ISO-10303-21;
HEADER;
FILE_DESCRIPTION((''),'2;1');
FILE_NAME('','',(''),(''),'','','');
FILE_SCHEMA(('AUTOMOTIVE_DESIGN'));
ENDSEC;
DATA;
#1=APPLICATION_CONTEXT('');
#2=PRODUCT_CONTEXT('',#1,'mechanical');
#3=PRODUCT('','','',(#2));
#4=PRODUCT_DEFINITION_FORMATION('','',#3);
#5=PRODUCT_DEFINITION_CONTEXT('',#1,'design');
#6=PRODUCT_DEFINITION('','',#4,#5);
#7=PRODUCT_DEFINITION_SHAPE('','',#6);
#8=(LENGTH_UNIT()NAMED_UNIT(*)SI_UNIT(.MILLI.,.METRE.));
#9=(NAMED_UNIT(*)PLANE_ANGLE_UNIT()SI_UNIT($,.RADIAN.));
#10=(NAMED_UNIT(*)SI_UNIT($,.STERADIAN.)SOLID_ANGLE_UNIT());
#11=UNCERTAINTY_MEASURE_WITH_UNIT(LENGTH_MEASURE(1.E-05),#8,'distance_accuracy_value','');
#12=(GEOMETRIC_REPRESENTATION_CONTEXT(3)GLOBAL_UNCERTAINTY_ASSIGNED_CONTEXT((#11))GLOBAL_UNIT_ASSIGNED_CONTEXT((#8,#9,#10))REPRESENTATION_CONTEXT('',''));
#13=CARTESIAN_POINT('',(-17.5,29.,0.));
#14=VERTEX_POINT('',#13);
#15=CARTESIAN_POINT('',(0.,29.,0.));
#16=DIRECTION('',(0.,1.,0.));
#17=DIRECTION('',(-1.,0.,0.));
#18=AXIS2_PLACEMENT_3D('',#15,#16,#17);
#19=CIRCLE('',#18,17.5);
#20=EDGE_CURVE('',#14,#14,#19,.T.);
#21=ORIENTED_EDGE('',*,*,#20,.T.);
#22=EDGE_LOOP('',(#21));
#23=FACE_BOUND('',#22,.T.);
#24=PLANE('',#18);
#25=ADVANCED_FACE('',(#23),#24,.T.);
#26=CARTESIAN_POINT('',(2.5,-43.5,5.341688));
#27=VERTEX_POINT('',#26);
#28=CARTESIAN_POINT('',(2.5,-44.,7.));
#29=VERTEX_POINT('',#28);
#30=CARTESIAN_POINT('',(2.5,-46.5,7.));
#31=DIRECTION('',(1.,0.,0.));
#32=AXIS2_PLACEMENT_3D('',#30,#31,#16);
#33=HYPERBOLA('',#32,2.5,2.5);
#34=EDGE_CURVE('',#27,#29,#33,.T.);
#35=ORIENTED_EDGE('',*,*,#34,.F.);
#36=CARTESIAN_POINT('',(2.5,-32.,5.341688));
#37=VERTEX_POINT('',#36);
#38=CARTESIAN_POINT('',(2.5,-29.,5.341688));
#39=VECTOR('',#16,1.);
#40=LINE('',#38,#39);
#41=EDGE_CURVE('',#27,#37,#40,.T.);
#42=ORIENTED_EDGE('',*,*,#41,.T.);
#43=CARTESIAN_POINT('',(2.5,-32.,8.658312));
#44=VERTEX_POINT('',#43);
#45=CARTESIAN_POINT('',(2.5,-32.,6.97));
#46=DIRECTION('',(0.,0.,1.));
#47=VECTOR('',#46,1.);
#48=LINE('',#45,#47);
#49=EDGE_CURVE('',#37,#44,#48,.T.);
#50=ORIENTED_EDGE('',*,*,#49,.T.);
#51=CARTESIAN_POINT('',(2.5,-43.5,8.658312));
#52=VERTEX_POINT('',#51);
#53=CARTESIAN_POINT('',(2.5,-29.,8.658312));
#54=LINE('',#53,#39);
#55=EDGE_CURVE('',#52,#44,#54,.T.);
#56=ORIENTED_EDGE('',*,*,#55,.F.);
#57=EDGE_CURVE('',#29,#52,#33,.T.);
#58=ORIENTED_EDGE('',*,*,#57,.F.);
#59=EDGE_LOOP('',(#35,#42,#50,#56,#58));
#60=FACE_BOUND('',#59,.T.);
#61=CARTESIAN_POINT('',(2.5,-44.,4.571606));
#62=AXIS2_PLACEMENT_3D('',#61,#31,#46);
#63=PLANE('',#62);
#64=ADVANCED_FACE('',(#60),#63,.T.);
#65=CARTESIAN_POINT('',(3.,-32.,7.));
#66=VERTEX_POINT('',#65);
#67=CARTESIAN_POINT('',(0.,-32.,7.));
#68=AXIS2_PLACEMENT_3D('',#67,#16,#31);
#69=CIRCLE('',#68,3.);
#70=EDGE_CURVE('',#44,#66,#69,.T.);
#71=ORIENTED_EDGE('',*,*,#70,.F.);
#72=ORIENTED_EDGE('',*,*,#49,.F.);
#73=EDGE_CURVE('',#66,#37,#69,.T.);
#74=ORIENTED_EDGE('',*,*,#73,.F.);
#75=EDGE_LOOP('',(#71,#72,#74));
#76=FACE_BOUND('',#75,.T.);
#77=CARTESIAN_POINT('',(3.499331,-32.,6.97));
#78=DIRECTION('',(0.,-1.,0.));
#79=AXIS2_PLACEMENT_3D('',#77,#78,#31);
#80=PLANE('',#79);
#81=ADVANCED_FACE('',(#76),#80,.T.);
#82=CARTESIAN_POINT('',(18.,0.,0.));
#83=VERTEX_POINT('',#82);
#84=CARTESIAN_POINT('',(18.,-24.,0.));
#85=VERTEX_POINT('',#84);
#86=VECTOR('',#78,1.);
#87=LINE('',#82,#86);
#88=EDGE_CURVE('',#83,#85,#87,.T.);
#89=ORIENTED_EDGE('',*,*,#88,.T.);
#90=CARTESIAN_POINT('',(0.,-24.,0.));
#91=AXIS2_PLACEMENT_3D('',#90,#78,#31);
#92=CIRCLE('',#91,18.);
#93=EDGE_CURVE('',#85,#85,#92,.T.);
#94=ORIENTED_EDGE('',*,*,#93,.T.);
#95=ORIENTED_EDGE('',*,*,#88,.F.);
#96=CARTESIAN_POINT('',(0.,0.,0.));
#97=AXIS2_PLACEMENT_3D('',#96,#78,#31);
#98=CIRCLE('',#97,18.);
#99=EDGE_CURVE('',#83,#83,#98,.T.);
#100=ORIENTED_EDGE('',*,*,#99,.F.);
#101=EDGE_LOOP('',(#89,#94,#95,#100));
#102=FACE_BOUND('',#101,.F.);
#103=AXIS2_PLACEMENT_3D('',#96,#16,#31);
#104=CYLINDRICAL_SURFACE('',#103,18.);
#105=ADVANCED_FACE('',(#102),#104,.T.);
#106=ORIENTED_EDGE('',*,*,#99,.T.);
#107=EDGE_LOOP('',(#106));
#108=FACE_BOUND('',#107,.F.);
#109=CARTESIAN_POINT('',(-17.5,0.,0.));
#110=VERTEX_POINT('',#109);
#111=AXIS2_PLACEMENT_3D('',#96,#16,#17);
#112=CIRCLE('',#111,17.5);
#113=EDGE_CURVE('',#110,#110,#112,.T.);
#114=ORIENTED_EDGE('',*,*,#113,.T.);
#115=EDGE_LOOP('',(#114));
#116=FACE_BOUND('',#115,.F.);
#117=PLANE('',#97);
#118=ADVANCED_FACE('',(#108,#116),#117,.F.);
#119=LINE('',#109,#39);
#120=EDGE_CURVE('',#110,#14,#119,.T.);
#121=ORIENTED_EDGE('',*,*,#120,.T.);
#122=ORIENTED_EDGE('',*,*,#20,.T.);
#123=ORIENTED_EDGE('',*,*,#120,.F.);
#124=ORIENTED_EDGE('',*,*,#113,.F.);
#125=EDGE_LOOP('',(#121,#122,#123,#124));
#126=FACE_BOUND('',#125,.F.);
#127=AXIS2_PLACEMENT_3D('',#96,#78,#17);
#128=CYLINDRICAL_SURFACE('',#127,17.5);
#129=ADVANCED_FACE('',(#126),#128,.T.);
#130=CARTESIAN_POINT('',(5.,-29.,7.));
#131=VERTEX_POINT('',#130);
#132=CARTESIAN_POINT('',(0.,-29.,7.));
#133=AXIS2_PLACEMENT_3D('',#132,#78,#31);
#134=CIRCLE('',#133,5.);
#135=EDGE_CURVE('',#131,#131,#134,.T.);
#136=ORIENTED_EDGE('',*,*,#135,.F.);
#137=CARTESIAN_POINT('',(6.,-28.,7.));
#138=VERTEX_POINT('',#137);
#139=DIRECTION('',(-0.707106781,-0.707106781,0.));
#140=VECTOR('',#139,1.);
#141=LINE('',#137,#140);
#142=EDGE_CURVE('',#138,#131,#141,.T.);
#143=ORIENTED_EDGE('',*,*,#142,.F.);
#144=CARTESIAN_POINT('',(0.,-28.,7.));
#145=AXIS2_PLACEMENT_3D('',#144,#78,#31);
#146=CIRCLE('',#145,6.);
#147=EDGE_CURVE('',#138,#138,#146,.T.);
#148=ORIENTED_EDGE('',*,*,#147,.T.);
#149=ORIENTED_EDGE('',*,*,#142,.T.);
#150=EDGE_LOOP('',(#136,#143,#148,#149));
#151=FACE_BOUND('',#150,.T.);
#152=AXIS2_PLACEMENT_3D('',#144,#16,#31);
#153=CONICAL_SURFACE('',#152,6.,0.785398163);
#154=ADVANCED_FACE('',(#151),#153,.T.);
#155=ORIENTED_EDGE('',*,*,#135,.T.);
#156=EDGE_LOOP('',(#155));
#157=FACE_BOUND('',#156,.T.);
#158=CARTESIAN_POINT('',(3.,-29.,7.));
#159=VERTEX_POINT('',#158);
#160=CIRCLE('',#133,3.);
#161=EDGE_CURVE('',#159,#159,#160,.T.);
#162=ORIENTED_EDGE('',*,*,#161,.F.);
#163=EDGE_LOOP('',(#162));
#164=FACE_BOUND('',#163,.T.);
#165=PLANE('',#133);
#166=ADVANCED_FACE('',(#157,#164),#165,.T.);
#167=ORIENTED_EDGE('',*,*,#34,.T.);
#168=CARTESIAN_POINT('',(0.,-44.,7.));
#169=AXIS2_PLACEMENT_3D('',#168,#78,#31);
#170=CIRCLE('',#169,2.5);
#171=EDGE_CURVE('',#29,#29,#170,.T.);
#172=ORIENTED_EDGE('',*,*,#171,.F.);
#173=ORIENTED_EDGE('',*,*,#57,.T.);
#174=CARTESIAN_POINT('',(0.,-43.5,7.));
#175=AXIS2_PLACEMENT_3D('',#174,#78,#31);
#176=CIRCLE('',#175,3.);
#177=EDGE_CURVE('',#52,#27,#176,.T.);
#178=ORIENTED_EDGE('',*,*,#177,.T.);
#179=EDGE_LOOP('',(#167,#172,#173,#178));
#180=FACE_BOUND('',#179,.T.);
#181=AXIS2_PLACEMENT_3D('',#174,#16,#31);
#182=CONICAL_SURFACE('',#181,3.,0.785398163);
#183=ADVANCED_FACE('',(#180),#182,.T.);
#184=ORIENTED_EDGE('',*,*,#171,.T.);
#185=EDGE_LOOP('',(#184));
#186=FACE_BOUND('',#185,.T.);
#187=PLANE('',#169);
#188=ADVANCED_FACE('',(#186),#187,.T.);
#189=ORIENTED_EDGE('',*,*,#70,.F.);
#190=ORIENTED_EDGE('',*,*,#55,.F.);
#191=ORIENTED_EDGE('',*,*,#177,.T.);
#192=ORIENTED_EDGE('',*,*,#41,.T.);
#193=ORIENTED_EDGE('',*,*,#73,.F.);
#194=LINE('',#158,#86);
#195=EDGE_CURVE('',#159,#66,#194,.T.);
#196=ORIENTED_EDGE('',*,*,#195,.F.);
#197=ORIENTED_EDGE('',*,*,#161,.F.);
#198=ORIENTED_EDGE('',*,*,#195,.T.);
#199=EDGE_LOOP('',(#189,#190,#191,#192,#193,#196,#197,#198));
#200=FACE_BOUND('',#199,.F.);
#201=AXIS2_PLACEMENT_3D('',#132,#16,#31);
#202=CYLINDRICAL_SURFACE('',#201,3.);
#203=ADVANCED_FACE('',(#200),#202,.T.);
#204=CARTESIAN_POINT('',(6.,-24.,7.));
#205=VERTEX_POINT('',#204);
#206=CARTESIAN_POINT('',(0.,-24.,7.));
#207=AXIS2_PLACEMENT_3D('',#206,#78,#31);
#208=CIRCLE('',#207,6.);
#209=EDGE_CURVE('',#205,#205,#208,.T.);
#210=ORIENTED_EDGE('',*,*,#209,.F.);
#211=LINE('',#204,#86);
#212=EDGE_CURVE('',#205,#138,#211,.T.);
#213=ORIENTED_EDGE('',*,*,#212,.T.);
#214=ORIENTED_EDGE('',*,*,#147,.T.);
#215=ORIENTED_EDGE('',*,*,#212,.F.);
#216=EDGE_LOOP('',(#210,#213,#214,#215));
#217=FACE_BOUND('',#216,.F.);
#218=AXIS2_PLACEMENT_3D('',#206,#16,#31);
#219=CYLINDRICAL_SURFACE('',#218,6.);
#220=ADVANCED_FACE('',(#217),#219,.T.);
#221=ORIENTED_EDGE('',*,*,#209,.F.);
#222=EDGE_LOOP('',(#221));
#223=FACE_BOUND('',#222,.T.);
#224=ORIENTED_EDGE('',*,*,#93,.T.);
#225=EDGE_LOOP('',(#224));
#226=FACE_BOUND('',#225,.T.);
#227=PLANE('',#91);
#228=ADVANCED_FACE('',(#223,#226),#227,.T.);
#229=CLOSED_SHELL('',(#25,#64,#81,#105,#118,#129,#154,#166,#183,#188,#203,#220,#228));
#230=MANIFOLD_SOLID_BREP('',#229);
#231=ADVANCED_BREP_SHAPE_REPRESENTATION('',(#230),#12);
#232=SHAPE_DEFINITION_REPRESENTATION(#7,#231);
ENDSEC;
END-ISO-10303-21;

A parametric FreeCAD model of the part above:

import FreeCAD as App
import Part
import Sketcher


def edges_at(feature, points):
    """Names of the edges that pass closest to the given points."""
    edges = feature.Shape.Edges
    near = lambda p: min(range(len(edges)), key=lambda i: edges[i].distToShape(Part.Vertex(*p))[0])
    return sorted({f"Edge{near(p) + 1}" for p in points})


def add_polygon(sketch, points):
    """Adds a closed chain of lines whose ends are joined by coincident constraints."""
    first, n = sketch.GeometryCount, len(points)
    for a, b in zip(points, points[1:] + points[:1]):
        sketch.addGeometry(Part.LineSegment(App.Vector(*a, 0), App.Vector(*b, 0)), False)
    for i in range(n):
        sketch.addConstraint(Sketcher.Constraint("Coincident", first + i, 2, first + (i + 1) % n, 1))

doc = App.newDocument("Part")
body = doc.addObject("PartDesign::Body", "Body")

# Sketch on XZ plane
sketch1 = body.newObject("Sketcher::SketchObject", "Sketch")
sketch1.AttachmentSupport = (doc.getObject("XZ_Plane"), [""])
sketch1.MapMode = "FlatFace"
sketch1.addGeometry(Part.Circle(App.Vector(0, 0, 0), App.Vector(0, 0, 1), 18), False)
sketch1.addConstraint([
    Sketcher.Constraint("Coincident", 0, 3, -1, 1),
    Sketcher.Constraint("Diameter", 0, 36.0),
])
pad1 = body.newObject("PartDesign::Pad", "Pad")
pad1.Profile = sketch1
pad1.Length = 24

# Sketch on XZ plane
sketch2 = body.newObject("Sketcher::SketchObject", "Sketch001")
sketch2.AttachmentSupport = (doc.getObject("XZ_Plane"), [""])
sketch2.MapMode = "FlatFace"
sketch2.AttachmentOffset = App.Placement(App.Vector(0, 0, 24), App.Rotation())
sketch2.addGeometry(Part.Circle(App.Vector(0, 7, 0), App.Vector(0, 0, 1), 6), False)
sketch2.addConstraint([
    Sketcher.Constraint("PointOnObject", 0, 3, -2),
    Sketcher.Constraint("Diameter", 0, 12.0),
    Sketcher.Constraint("DistanceY", -1, 1, 0, 3, 7.0),
])
pad2 = body.newObject("PartDesign::Pad", "Pad001")
pad2.Profile = sketch2
pad2.Length = 5
doc.recompute()

chamfer = body.newObject("PartDesign::Chamfer", "Chamfer")
chamfer.Base = (pad2, edges_at(pad2, [(-6, -29, 7)]))
chamfer.Size = 1

# Sketch on XZ plane
sketch3 = body.newObject("Sketcher::SketchObject", "Sketch002")
sketch3.AttachmentSupport = (doc.getObject("XZ_Plane"), [""])
sketch3.MapMode = "FlatFace"
sketch3.AttachmentOffset = App.Placement(App.Vector(0, 0, 29), App.Rotation())
sketch3.addGeometry(Part.Circle(App.Vector(0, 7, 0), App.Vector(0, 0, 1), 3), False)
sketch3.addConstraint([
    Sketcher.Constraint("PointOnObject", 0, 3, -2),
    Sketcher.Constraint("Diameter", 0, 6.0),
    Sketcher.Constraint("DistanceY", -1, 1, 0, 3, 7.0),
])
pad3 = body.newObject("PartDesign::Pad", "Pad002")
pad3.Profile = sketch3
pad3.Length = 15
doc.recompute()

chamfer2 = body.newObject("PartDesign::Chamfer", "Chamfer001")
chamfer2.Base = (pad3, edges_at(pad3, [(-3, -44, 7)]))
chamfer2.Size = 0.5

# Sketch on XZ plane
sketch4 = body.newObject("Sketcher::SketchObject", "Sketch003")
sketch4.AttachmentSupport = (doc.getObject("XZ_Plane"), [""])
sketch4.MapMode = "FlatFace"
sketch4.AttachmentOffset = App.Placement(App.Vector(0, 0, 44), App.Rotation())
add_polygon(sketch4, [(2.5, 9.4), (2.5, 4.6), (4.5, 4.6), (4.5, 9.4)])  # lines 0-3
sketch4.addConstraint([
    Sketcher.Constraint("Vertical", 0),
    Sketcher.Constraint("Horizontal", 1),
    Sketcher.Constraint("Vertical", 2),
    Sketcher.Constraint("Horizontal", 3),
    Sketcher.Constraint("DistanceX", -1, 1, 0, 2, 2.5),
    Sketcher.Constraint("DistanceY", 0, 2, 0, 1, 4.796788),
    Sketcher.Constraint("DistanceX", 1, 1, 1, 2, 1.998662),
    Sketcher.Constraint("DistanceY", -1, 1, 0, 2, 4.571606),
])
pocket1 = body.newObject("PartDesign::Pocket", "Pocket")
pocket1.Profile = sketch4
pocket1.Length = 12

# Sketch on XZ plane
sketch5 = body.newObject("Sketcher::SketchObject", "Sketch004")
sketch5.AttachmentSupport = (doc.getObject("XZ_Plane"), [""])
sketch5.MapMode = "FlatFace"
sketch5.addGeometry(Part.Circle(App.Vector(0, 0, 0), App.Vector(0, 0, 1), 18), False)
sketch5.addConstraint([
    Sketcher.Constraint("Coincident", 0, 3, -1, 1),
    Sketcher.Constraint("Diameter", 0, 35.0),
])
pad4 = body.newObject("PartDesign::Pad", "Pad003")
pad4.Profile = sketch5
pad4.Length = 29
pad4.Reversed = True

doc.recompute()
